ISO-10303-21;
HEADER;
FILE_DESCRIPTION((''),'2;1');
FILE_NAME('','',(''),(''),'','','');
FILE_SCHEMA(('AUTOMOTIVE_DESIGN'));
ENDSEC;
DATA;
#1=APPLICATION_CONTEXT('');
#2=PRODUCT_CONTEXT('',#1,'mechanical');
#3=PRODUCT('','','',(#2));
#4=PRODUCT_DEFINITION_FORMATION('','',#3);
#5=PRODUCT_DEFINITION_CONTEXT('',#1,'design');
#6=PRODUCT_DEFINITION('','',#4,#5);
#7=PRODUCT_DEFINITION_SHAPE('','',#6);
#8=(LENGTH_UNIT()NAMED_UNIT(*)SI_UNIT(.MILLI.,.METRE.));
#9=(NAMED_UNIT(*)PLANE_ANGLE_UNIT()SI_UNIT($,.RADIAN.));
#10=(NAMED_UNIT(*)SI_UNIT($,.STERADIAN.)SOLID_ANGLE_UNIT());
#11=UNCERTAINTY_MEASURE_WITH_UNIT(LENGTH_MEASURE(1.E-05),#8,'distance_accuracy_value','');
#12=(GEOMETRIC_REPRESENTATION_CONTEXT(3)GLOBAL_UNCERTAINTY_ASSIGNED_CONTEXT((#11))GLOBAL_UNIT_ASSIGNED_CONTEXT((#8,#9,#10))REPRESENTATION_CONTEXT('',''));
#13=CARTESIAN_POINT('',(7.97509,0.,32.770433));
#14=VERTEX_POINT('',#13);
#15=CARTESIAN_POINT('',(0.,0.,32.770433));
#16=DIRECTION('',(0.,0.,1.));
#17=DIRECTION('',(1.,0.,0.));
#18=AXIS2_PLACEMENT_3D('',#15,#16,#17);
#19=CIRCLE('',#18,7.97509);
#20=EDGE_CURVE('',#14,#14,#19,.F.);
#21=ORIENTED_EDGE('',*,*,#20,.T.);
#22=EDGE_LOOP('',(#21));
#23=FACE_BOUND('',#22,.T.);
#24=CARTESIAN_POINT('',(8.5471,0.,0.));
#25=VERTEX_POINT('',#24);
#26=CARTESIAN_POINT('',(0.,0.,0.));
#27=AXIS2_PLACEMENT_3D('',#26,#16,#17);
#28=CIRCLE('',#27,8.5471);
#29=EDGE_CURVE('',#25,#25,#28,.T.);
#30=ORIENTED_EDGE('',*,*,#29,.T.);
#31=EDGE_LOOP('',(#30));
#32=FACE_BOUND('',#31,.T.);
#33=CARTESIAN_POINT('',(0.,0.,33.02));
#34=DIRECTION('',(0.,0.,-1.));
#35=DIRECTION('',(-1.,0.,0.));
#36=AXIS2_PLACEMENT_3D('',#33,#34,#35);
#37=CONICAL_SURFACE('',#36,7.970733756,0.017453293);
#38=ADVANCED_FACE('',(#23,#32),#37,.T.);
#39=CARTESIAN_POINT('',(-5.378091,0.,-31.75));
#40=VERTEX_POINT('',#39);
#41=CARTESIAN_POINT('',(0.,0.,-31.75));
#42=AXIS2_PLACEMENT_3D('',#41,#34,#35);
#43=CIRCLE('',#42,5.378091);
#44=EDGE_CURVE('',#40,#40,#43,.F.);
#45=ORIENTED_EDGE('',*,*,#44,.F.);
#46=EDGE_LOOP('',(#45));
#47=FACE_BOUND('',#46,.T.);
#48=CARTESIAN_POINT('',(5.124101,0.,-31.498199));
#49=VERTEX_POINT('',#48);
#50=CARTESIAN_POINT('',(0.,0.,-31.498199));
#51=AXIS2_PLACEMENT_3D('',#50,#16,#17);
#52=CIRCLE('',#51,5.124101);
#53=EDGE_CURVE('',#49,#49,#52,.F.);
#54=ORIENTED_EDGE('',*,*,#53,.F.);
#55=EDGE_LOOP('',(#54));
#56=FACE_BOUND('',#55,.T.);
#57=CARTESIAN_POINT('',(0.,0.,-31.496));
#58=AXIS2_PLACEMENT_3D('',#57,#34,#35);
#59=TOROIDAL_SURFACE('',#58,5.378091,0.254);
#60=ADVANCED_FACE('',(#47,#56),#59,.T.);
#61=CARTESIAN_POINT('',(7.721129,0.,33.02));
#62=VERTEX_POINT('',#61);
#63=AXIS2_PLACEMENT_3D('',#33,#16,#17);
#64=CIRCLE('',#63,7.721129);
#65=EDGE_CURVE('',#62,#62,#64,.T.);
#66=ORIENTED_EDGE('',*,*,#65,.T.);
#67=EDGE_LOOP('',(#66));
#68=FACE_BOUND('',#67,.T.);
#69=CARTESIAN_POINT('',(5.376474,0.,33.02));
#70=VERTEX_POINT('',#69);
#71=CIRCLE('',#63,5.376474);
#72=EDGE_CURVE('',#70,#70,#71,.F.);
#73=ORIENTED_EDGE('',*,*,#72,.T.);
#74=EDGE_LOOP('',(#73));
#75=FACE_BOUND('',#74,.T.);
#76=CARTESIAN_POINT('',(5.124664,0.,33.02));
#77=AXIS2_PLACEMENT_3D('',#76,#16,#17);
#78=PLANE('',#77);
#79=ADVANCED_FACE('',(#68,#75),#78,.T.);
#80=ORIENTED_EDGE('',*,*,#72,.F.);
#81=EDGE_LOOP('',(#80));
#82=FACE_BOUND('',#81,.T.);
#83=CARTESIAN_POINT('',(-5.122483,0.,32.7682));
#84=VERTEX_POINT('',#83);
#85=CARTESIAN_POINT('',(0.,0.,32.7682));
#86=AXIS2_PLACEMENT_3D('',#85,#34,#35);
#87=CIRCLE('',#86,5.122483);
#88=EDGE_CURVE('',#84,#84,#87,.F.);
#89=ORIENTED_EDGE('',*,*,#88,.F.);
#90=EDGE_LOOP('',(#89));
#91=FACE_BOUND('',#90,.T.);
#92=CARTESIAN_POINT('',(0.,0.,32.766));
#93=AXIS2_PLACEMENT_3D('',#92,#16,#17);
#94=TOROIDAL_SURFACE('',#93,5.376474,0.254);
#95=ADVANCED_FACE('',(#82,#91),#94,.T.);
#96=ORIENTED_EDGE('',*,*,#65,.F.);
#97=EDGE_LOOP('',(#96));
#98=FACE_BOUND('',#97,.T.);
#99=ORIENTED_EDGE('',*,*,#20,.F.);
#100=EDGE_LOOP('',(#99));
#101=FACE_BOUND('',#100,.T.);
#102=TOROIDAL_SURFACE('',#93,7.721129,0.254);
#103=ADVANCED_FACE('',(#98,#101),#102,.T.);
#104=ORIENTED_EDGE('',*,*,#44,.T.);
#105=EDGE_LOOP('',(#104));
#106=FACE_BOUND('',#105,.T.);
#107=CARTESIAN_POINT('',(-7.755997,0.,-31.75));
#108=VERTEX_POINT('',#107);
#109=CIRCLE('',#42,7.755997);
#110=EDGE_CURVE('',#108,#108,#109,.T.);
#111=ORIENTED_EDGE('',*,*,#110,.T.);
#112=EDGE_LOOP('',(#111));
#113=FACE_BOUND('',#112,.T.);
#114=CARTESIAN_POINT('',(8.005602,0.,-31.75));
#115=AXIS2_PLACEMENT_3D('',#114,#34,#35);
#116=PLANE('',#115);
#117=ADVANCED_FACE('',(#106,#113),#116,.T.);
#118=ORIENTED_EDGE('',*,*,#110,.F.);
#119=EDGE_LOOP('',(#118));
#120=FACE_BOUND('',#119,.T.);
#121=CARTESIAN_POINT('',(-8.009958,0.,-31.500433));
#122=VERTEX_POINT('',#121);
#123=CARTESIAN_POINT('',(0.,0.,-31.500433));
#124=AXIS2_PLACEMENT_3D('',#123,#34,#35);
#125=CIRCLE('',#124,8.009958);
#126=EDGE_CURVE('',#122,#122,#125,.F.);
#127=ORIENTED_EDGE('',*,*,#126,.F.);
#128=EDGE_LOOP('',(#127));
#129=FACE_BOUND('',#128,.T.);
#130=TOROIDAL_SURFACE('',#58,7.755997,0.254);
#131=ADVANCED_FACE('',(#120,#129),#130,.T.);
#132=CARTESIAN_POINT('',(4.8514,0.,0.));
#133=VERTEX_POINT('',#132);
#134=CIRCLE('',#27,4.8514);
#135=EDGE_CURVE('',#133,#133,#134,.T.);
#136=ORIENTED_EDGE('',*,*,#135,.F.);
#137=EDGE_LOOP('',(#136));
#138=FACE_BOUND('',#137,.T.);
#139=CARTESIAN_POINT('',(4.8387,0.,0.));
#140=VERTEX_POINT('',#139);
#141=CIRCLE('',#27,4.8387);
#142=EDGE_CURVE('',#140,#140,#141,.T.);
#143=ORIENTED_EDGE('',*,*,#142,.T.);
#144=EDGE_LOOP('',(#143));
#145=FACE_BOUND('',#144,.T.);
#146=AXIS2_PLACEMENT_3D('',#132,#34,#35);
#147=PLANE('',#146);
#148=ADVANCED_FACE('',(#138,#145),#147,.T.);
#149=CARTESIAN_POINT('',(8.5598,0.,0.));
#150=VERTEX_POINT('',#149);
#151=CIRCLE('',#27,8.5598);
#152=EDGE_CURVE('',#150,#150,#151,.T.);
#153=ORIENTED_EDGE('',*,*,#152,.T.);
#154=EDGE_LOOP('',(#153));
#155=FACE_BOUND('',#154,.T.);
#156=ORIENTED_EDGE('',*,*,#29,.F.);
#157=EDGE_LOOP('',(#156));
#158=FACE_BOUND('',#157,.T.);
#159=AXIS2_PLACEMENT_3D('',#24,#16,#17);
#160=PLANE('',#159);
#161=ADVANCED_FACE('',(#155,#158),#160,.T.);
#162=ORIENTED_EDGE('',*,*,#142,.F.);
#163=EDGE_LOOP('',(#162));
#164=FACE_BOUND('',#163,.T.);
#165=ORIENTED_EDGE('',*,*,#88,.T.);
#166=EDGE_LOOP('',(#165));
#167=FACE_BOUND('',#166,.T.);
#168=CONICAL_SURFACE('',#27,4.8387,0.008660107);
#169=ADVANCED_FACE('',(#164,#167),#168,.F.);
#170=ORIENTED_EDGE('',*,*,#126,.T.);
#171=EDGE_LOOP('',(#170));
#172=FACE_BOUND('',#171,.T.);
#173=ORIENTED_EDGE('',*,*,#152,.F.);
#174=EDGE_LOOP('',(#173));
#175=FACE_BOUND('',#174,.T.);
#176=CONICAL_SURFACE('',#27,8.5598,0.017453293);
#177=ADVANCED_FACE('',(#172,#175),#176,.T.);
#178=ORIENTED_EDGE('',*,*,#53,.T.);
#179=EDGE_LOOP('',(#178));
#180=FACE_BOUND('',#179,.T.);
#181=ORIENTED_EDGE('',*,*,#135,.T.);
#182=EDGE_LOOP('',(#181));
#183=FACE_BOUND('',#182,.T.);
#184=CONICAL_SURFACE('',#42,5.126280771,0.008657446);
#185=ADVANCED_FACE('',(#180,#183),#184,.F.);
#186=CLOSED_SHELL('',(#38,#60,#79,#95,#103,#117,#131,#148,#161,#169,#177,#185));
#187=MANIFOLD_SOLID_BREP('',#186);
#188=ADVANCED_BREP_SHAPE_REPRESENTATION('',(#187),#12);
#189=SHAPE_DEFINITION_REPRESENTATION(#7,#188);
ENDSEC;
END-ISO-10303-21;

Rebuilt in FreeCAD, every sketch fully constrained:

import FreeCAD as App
import Part
import Sketcher
from FreeCAD import Vector
Q = App.Units.Quantity


def edges_at(feature, points):
    """Names of the edges that pass closest to the given points."""
    edges = feature.Shape.Edges
    near = lambda p: min(range(len(edges)), key=lambda i: edges[i].distToShape(Part.Vertex(*p))[0])
    return sorted({f"Edge{near(p) + 1}" for p in points})

doc = App.newDocument("Part")
body = doc.addObject("PartDesign::Body", "Body")

# Sketch on XZ plane
sketch1 = doc.addObject("Sketcher::SketchObject", "Sketch")
body.addObject(sketch1)
sketch1.AttachmentSupport = (doc.XZ_Plane, [""])
sketch1.MapMode = "FlatFace"
sketch1.addGeometry(Part.LineSegment(Vector(5.126281, -31.75, 0), Vector(4.8514, 0, 0)), False)
sketch1.addGeometry(Part.LineSegment(Vector(4.8514, 0, 0), Vector(4.8387, 0, 0)), False)
sketch1.addGeometry(Part.LineSegment(Vector(4.8387, 0, 0), Vector(5.124664, 33.02, 0)), False)
sketch1.addGeometry(Part.LineSegment(Vector(5.124664, 33.02, 0), Vector(7.970734, 33.02, 0)), False)
sketch1.addGeometry(Part.LineSegment(Vector(7.970734, 33.02, 0), Vector(8.5471, 0, 0)), False)
sketch1.addGeometry(Part.LineSegment(Vector(8.5471, 0, 0), Vector(8.5598, 0, 0)), False)
sketch1.addGeometry(Part.LineSegment(Vector(8.5598, 0, 0), Vector(8.005602, -31.75, 0)), False)
sketch1.addGeometry(Part.LineSegment(Vector(8.005602, -31.75, 0), Vector(5.126281, -31.75, 0)), False)
sketch1.addConstraint(Sketcher.Constraint("Coincident", 0, 2, 1, 1))
sketch1.addConstraint(Sketcher.Constraint("Coincident", 1, 2, 2, 1))
sketch1.addConstraint(Sketcher.Constraint("Coincident", 2, 2, 3, 1))
sketch1.addConstraint(Sketcher.Constraint("Coincident", 3, 2, 4, 1))
sketch1.addConstraint(Sketcher.Constraint("Coincident", 4, 2, 5, 1))
sketch1.addConstraint(Sketcher.Constraint("Coincident", 5, 2, 6, 1))
sketch1.addConstraint(Sketcher.Constraint("Coincident", 6, 2, 7, 1))
sketch1.addConstraint(Sketcher.Constraint("Coincident", 7, 2, 0, 1))
sketch1.addConstraint(Sketcher.Constraint("Horizontal", 1))
sketch1.addConstraint(Sketcher.Constraint("Horizontal", 3))
sketch1.addConstraint(Sketcher.Constraint("Horizontal", 5))
sketch1.addConstraint(Sketcher.Constraint("Horizontal", 7))
sketch1.addConstraint(Sketcher.Constraint("PointOnObject", 0, 2, -1))
sketch1.addConstraint(Sketcher.Constraint("PointOnObject", 4, 2, -1))
sketch1.addConstraint(Sketcher.Constraint("Equal", 1, 5))
sketch1.addConstraint(Sketcher.Constraint("Angle", 4, Q("-89 deg")))
sketch1.addConstraint(Sketcher.Constraint("Angle", 6, Q("-91 deg")))
sketch1.addConstraint(Sketcher.Constraint("DistanceY", -1, 1, 2, 2, Q("1.3 in")))
sketch1.addConstraint(Sketcher.Constraint("DistanceY", 6, 2, -1, 1, Q("1.25 in")))
sketch1.addConstraint(Sketcher.Constraint("DistanceX", 1, 2, 1, 1, Q("0.0005 in")))
sketch1.addConstraint(Sketcher.Constraint("DistanceX", -1, 1, 0, 2, Q("0.191 in")))
sketch1.addConstraint(Sketcher.Constraint("DistanceX", -1, 1, 5, 2, Q("0.337 in")))
sketch1.addConstraint(Sketcher.Constraint("DistanceX", 3, 1, 3, 2, 2.84607))
sketch1.addConstraint(Sketcher.Constraint("DistanceX", 7, 2, 7, 1, 2.879321))
revolution = doc.addObject("PartDesign::Revolution", "Revolution")
body.addObject(revolution)
revolution.Profile = sketch1
revolution.ReferenceAxis = (sketch1, ["V_Axis"])
revolution.Angle = 360
doc.recompute()

fillet = doc.addObject("PartDesign::Fillet", "Fillet")
body.addObject(fillet)
fillet.Base = (revolution, edges_at(revolution, [
    (-8.006, 0, -31.75),
    (-7.971, 0, 33.02),
    (-5.125, 0, 33.02),
    (-5.126, 0, -31.75),
]))
fillet.Radius = Q("0.01 in")

doc.recompute()
